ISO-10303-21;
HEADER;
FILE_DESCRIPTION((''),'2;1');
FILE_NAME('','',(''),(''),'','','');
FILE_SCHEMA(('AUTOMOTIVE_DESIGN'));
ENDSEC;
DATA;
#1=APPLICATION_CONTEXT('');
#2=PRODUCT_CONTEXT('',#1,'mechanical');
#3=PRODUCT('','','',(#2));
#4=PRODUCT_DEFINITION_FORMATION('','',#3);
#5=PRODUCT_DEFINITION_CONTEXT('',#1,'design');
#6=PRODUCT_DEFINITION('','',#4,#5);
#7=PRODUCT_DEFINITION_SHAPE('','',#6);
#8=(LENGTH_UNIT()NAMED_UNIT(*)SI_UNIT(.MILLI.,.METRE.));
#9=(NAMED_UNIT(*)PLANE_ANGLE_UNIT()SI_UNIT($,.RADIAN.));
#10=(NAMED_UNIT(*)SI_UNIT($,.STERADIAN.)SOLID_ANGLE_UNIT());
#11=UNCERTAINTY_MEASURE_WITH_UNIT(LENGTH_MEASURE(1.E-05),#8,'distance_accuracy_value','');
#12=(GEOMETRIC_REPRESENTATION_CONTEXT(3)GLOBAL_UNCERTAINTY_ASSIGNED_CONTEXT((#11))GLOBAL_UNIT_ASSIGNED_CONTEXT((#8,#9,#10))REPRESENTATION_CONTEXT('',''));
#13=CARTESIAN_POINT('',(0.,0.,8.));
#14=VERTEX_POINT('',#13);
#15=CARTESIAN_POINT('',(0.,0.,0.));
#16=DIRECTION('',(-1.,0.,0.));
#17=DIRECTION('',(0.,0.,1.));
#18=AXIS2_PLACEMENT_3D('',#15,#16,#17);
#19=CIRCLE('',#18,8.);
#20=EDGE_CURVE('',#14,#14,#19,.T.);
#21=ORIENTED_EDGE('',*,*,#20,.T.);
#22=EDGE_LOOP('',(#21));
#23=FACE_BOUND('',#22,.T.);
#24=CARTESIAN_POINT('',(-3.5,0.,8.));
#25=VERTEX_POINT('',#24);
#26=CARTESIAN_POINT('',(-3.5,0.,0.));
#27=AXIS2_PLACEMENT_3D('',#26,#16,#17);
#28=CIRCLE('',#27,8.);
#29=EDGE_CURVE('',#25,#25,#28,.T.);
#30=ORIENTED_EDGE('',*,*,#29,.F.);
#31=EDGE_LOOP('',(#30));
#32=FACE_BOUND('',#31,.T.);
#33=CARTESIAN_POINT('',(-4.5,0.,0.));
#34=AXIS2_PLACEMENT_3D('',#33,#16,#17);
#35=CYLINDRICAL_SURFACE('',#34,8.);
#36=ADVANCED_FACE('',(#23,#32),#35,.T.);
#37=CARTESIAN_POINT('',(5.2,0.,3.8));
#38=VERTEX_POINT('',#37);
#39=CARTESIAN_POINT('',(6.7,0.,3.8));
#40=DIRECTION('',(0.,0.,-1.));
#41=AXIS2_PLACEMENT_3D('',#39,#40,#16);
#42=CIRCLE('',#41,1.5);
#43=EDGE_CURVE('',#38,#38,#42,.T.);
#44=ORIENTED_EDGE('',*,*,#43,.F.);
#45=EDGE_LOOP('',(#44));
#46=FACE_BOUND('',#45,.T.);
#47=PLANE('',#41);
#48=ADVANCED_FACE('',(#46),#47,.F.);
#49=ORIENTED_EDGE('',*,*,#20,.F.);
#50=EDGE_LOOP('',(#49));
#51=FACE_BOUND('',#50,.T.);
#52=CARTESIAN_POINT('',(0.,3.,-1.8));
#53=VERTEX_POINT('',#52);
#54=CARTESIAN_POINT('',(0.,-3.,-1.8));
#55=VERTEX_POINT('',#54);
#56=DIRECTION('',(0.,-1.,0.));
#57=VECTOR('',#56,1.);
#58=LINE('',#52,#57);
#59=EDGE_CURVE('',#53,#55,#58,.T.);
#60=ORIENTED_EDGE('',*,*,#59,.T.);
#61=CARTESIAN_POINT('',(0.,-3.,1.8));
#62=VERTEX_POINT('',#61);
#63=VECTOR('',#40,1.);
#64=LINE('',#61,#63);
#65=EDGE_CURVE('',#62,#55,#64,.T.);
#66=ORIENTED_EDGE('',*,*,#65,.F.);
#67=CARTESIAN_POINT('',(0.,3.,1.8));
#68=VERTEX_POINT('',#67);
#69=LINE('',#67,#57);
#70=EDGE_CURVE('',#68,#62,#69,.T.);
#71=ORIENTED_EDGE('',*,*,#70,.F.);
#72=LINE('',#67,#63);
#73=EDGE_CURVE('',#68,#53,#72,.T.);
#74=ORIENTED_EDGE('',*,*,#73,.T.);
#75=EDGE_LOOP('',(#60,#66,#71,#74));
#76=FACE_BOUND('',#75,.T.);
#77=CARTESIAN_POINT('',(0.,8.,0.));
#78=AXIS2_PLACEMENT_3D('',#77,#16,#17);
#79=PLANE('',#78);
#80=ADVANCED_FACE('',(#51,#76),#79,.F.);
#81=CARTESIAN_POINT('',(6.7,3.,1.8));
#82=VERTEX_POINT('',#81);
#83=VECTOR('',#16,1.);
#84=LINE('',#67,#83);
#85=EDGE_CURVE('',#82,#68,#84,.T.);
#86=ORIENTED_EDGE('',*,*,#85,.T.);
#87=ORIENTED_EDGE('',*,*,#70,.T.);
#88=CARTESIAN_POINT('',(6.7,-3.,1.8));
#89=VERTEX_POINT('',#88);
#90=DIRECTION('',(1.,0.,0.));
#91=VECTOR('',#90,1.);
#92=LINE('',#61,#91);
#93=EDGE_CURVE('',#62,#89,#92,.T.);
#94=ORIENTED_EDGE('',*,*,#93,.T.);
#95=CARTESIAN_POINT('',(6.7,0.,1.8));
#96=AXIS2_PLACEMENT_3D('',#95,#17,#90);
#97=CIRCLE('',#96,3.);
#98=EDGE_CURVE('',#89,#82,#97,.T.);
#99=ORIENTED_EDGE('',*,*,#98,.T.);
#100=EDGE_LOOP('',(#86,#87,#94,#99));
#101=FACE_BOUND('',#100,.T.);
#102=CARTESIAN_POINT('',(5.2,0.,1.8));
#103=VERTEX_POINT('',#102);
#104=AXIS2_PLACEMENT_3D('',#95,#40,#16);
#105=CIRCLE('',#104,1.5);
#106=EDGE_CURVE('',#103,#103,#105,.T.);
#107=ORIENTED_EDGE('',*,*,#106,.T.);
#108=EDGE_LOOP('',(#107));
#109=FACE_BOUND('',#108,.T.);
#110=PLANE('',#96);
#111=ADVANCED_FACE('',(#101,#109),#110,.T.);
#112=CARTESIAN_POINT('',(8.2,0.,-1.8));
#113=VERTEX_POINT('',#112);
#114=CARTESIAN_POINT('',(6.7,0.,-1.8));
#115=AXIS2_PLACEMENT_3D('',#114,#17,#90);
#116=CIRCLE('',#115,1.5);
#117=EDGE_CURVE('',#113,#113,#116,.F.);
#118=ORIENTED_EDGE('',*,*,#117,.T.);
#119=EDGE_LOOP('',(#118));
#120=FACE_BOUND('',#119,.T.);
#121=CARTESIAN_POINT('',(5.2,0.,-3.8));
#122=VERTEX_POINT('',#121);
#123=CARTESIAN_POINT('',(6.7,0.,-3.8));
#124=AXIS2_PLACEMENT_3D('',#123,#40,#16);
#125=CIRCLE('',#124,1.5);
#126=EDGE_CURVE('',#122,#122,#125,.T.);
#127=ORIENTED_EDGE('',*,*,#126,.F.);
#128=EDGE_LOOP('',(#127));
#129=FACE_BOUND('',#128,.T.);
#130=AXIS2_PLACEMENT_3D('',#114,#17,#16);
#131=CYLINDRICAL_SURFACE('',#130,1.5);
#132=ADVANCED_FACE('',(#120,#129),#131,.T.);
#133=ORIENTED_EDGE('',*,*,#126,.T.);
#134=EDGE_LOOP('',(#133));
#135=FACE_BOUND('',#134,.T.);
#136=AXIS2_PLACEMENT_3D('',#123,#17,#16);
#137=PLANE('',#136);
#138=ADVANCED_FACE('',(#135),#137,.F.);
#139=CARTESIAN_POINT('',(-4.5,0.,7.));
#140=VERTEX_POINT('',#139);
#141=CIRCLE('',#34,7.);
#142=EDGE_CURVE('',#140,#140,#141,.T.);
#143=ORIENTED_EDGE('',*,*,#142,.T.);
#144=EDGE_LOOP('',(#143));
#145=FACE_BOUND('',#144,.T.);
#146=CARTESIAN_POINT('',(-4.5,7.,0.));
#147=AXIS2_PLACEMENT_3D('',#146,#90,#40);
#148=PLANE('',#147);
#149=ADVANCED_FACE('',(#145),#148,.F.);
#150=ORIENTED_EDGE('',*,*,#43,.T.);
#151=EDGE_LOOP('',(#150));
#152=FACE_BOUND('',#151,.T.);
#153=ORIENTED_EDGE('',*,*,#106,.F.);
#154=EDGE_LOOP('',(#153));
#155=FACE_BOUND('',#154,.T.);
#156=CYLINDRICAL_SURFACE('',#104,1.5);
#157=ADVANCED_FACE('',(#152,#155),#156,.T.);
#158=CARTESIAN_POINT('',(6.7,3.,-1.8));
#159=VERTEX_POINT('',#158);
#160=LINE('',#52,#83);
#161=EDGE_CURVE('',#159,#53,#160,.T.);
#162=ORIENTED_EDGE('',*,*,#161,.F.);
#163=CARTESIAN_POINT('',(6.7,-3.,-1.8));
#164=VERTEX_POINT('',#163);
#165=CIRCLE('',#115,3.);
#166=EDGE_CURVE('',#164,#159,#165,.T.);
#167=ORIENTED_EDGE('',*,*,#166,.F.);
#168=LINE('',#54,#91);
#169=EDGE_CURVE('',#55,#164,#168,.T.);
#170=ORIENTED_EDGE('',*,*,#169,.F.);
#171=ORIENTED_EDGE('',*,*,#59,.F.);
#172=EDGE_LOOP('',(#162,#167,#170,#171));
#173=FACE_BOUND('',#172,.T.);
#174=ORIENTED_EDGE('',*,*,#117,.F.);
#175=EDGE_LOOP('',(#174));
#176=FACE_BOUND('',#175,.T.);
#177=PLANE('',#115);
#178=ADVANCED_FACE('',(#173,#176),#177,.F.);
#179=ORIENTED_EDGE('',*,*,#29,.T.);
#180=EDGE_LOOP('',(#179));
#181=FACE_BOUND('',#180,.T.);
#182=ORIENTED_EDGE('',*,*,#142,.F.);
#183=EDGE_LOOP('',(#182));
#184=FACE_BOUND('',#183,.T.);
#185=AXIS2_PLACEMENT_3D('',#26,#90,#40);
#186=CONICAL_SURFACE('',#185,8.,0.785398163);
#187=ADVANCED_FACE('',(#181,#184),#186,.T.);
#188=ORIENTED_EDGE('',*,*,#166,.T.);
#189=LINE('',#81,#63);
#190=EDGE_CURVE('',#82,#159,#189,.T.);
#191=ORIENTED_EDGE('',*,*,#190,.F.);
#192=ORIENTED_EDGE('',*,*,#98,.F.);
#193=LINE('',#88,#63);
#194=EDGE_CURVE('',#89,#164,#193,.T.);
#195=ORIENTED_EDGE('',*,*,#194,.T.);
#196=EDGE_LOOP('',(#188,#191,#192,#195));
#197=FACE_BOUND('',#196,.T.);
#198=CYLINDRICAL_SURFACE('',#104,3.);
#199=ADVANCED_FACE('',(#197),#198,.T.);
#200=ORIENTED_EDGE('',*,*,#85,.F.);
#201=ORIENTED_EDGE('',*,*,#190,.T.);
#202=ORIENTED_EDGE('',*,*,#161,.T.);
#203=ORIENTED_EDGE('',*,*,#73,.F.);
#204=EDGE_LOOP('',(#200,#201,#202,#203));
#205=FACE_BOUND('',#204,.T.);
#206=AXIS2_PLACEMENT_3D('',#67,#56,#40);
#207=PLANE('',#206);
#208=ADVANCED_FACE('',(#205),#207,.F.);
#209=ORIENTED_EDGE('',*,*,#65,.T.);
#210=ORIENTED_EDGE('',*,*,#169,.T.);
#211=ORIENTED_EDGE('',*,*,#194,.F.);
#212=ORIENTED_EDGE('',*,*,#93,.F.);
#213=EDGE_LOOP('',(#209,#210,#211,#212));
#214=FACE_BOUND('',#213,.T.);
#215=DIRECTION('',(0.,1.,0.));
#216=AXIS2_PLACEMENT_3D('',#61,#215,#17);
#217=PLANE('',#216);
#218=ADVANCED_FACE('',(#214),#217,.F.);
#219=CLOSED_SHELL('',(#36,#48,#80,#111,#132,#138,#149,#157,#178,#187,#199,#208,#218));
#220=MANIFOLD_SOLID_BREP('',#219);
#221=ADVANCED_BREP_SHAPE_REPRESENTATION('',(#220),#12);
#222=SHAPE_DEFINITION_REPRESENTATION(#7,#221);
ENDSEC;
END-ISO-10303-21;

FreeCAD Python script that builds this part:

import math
import FreeCAD as App
import Part
import Sketcher
Q = App.Units.Quantity

doc = App.newDocument("Part")
params = doc.addObject("Spreadsheet::Sheet", "Params")
for row, (alias, value) in enumerate([
    ("sketch1_height", "7 mm"),
    ("sketch1_height2", "8 mm"),
    ("sketch1_width", "4.5 mm"),
    ("revolution_angle", "360 deg"),
    ("sketch2_radius", "3 mm"),
    ("sketch2_width", "6.7 mm"),
    ("pad1_length", "3.6 mm"),
    ("sketch3_height", "2 mm"),
    ("sketch3_width", "1.5 mm"),
    ("revolution2_angle", "360 deg"),
], start=1):
    params.set(f"A{row}", alias)
    params.set(f"B{row}", "=" + value)
    params.setAlias(f"B{row}", alias)

body = doc.addObject("PartDesign::Body", "Body")

sketch1 = body.newObject("Sketcher::SketchObject", "Sketch")
sketch1.AttachmentSupport = (doc.getObject("XY_Plane"), [""])
sketch1.MapMode = "FlatFace"
sketch1.addGeometry([
    Part.LineSegment(App.Vector(-4.5, 7, 0), App.Vector(-4.5, 0, 0)),
    Part.LineSegment(App.Vector(-4.5, 0, 0), App.Vector(0, 0, 0)),
    Part.LineSegment(App.Vector(0, 0, 0), App.Vector(0, 8, 0)),
    Part.LineSegment(App.Vector(0, 8, 0), App.Vector(-3.5, 8, 0)),
    Part.LineSegment(App.Vector(-3.5, 8, 0), App.Vector(-4.5, 7, 0)),
], False)
sketch1.addConstraint([
    Sketcher.Constraint("Coincident", 0, 2, 1, 1),
    Sketcher.Constraint("Coincident", 1, 2, 2, 1),
    Sketcher.Constraint("Coincident", 2, 2, 3, 1),
    Sketcher.Constraint("Coincident", 3, 2, 4, 1),
    Sketcher.Constraint("Coincident", 4, 2, 0, 1),
    Sketcher.Constraint("Vertical", 0),
    Sketcher.Constraint("Horizontal", 1),
    Sketcher.Constraint("Vertical", 2),
    Sketcher.Constraint("Horizontal", 3),
    Sketcher.Constraint("Coincident", 1, 2, -1, 1),
    Sketcher.Constraint("DistanceY", 0, 2, 0, 1, Q("7 mm")),
    Sketcher.Constraint("DistanceY", 2, 1, 2, 2, Q("8 mm")),
    Sketcher.Constraint("Angle", 4, Q("-135 deg")),
    Sketcher.Constraint("DistanceX", 1, 1, 1, 2, Q("4.5 mm")),
])
sketch1.setExpression("Constraints[10]", "Params.sketch1_height")
sketch1.setExpression("Constraints[11]", "Params.sketch1_height2")
sketch1.setExpression("Constraints[13]", "Params.sketch1_width")
revolution = body.newObject("PartDesign::Revolution", "Revolution")
revolution.Profile = sketch1
revolution.ReferenceAxis = (sketch1, ["H_Axis"])
revolution.setExpression("Angle", "Params.revolution_angle")

sketch2 = body.newObject("Sketcher::SketchObject", "Sketch001")
sketch2.AttachmentSupport = (doc.getObject("XY_Plane"), [""])
sketch2.MapMode = "FlatFace"
sketch2.addGeometry([
    Part.LineSegment(App.Vector(0, -3, 0), App.Vector(6.7, -3, 0)),
    Part.ArcOfCircle(Part.Circle(App.Vector(6.7, 0, 0), App.Vector(0, 0, 1), 3), math.radians(-90), math.radians(90)),
    Part.LineSegment(App.Vector(6.7, 3, 0), App.Vector(0, 3, 0)),
    Part.LineSegment(App.Vector(0, 3, 0), App.Vector(0, -3, 0)),
], False)
sketch2.addConstraint([
    Sketcher.Constraint("Tangent", 0, 2, 1, 1),
    Sketcher.Constraint("Tangent", 1, 2, 2, 1),
    Sketcher.Constraint("Coincident", 2, 2, 3, 1),
    Sketcher.Constraint("Coincident", 3, 2, 0, 1),
    Sketcher.Constraint("Horizontal", 0),
    Sketcher.Constraint("Horizontal", 2),
    Sketcher.Constraint("Vertical", 3),
    Sketcher.Constraint("Symmetric", 2, 2, 3, 2, -1, 1),
    Sketcher.Constraint("Radius", 1, Q("3 mm")),
    Sketcher.Constraint("DistanceX", 0, 1, 0, 2, Q("6.7 mm")),
])
sketch2.setExpression("Constraints[8]", "Params.sketch2_radius")
sketch2.setExpression("Constraints[9]", "Params.sketch2_width")
pad1 = body.newObject("PartDesign::Pad", "Pad")
pad1.Profile = sketch2
pad1.setExpression("Length", "Params.pad1_length")
pad1.Midplane = True

sketch3 = body.newObject("Sketcher::SketchObject", "Sketch002")
sketch3.AttachmentSupport = (doc.getObject("XZ_Plane"), [""])
sketch3.MapMode = "FlatFace"
sketch3.addGeometry([
    Part.LineSegment(App.Vector(6.7, 1.8, 0), App.Vector(6.7, 3.8, 0)),
    Part.LineSegment(App.Vector(6.7, 3.8, 0), App.Vector(8.2, 3.8, 0)),
    Part.LineSegment(App.Vector(8.2, 3.8, 0), App.Vector(8.2, 1.8, 0)),
    Part.LineSegment(App.Vector(8.2, 1.8, 0), App.Vector(6.7, 1.8, 0)),
], False)
sketch3.addGeometry(Part.LineSegment(App.Vector(6.7, 1.8, 0), App.Vector(6.7, 3.8, 0)), True)
sketch3.addConstraint([
    Sketcher.Constraint("Coincident", 0, 2, 1, 1),
    Sketcher.Constraint("Coincident", 1, 2, 2, 1),
    Sketcher.Constraint("Coincident", 2, 2, 3, 1),
    Sketcher.Constraint("Coincident", 3, 2, 0, 1),
    Sketcher.Constraint("Vertical", 0),
    Sketcher.Constraint("Horizontal", 1),
    Sketcher.Constraint("Vertical", 2),
    Sketcher.Constraint("Horizontal", 3),
    Sketcher.Constraint("Vertical", 4),
    Sketcher.Constraint("Coincident", 4, 1, 3, 2),
    Sketcher.Constraint("Horizontal", 1, 2, 4, 2),
    Sketcher.Constraint("DistanceY", 0, 1, 0, 2, Q("2 mm")),
    Sketcher.Constraint("DistanceX", 1, 1, 1, 2, Q("1.5 mm")),
    Sketcher.Constraint("DistanceX", -1, 1, 0, 2, Q("6.7 mm")),
    Sketcher.Constraint("DistanceY", -1, 1, 0, 2, Q("3.8 mm")),
])
sketch3.setExpression("Constraints[11]", "Params.sketch3_height")
sketch3.setExpression("Constraints[12]", "Params.sketch3_width")
revolution2 = body.newObject("PartDesign::Revolution", "Revolution001")
revolution2.Profile = sketch3
revolution2.ReferenceAxis = (sketch3, ["Axis0"])
revolution2.setExpression("Angle", "Params.revolution2_angle")
doc.recompute()

mirrored = body.newObject("PartDesign::Mirrored", "Mirrored")
mirrored.Originals = [revolution2]
mirrored.MirrorPlane = (doc.getObject("XY_Plane"), [""])
body.Tip = mirrored

doc.recompute()
